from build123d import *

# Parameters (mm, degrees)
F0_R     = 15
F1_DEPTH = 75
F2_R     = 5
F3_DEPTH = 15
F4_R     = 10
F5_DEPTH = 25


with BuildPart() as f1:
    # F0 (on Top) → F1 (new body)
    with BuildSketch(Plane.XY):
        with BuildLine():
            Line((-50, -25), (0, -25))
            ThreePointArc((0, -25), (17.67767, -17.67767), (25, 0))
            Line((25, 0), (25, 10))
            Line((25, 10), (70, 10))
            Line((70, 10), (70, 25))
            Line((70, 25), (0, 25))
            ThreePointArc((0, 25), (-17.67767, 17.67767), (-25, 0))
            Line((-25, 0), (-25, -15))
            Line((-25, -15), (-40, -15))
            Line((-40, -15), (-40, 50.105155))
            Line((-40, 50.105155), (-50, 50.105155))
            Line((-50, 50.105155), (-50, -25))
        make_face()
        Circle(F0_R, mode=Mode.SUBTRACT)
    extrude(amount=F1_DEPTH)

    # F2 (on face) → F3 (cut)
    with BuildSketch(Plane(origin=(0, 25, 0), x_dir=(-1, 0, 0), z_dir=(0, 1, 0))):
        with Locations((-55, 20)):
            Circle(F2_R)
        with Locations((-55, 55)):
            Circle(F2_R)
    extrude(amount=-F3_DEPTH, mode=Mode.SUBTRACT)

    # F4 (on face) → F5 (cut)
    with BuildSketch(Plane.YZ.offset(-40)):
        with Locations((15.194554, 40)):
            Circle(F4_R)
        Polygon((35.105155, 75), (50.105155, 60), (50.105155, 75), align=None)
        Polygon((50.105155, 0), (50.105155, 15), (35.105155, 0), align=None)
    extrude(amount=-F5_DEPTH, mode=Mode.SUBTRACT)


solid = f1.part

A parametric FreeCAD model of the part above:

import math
import FreeCAD as App
import Part
import Sketcher

V = App.Vector
Q = App.Units.Quantity


def add_polygon(sketch, points):
    """Adds a closed chain of lines whose ends are joined by coincident constraints."""
    first, n = sketch.GeometryCount, len(points)
    for a, b in zip(points, points[1:] + points[:1]):
        sketch.addGeometry(Part.LineSegment(App.Vector(*a, 0), App.Vector(*b, 0)), False)
    for i in range(n):
        sketch.addConstraint(Sketcher.Constraint("Coincident", first + i, 2, first + (i + 1) % n, 1))

doc = App.newDocument("Part")
body = doc.addObject("PartDesign::Body", "Body")

sketch1 = doc.addObject("Sketcher::SketchObject", "Sketch")
body.addObject(sketch1)
sketch1.AttachmentSupport = (doc.XY_Plane, [""])
sketch1.MapMode = "FlatFace"
sketch1.addGeometry([
    Part.LineSegment(V(-50, -25, 0), V(0, -25, 0)),
    Part.ArcOfCircle(Part.Circle(V(0, 0, 0), V(0, 0, 1), 25), math.radians(-90), math.radians(0)),
    Part.LineSegment(V(25, 0, 0), V(25, 10, 0)),
    Part.LineSegment(V(25, 10, 0), V(70, 10, 0)),
    Part.LineSegment(V(70, 10, 0), V(70, 25, 0)),
    Part.LineSegment(V(70, 25, 0), V(0, 25, 0)),
    Part.ArcOfCircle(Part.Circle(V(0, 0, 0), V(0, 0, 1), 25), math.radians(90), math.radians(180)),
    Part.LineSegment(V(-25, 0, 0), V(-25, -15, 0)),
    Part.LineSegment(V(-25, -15, 0), V(-40, -15, 0)),
    Part.LineSegment(V(-40, -15, 0), V(-40, 50, 0)),
    Part.LineSegment(V(-40, 50, 0), V(-50, 50, 0)),
    Part.LineSegment(V(-50, 50, 0), V(-50, -25, 0)),
    Part.Circle(V(0, 0, 0), V(0, 0, 1), 15),
], False)
sketch1.addConstraint([
    Sketcher.Constraint("Tangent", 0, 2, 1, 1),
    Sketcher.Constraint("Tangent", 1, 2, 2, 1),
    Sketcher.Constraint("Coincident", 2, 2, 3, 1),
    Sketcher.Constraint("Coincident", 3, 2, 4, 1),
    Sketcher.Constraint("Coincident", 4, 2, 5, 1),
    Sketcher.Constraint("Tangent", 5, 2, 6, 1),
    Sketcher.Constraint("Tangent", 6, 2, 7, 1),
    Sketcher.Constraint("Coincident", 7, 2, 8, 1),
    Sketcher.Constraint("Coincident", 8, 2, 9, 1),
    Sketcher.Constraint("Coincident", 9, 2, 10, 1),
    Sketcher.Constraint("Coincident", 10, 2, 11, 1),
    Sketcher.Constraint("Coincident", 11, 2, 0, 1),
    Sketcher.Constraint("Horizontal", 0),
    Sketcher.Constraint("Vertical", 2),
    Sketcher.Constraint("Horizontal", 3),
    Sketcher.Constraint("Vertical", 4),
    Sketcher.Constraint("Horizontal", 5),
    Sketcher.Constraint("Vertical", 7),
    Sketcher.Constraint("Horizontal", 8),
    Sketcher.Constraint("Vertical", 9),
    Sketcher.Constraint("Horizontal", 10),
    Sketcher.Constraint("Vertical", 11),
    Sketcher.Constraint("Coincident", 1, 3, -1, 1),
    Sketcher.Constraint("Coincident", 6, 3, -1, 1),
    Sketcher.Constraint("Coincident", 12, 3, -1, 1),
    Sketcher.Constraint("Equal", 1, 6),
    Sketcher.Constraint("Equal", 10, 2),
    Sketcher.Constraint("Equal", 8, 4),
    Sketcher.Constraint("Equal", 4, 7),
    Sketcher.Constraint("Diameter", 12, Q("30 mm")),
    Sketcher.Constraint("Radius", 1, Q("24.999998 mm")),
    Sketcher.Constraint("DistanceX", 3, 1, 3, 2, Q("45 mm")),
    Sketcher.Constraint("DistanceX", 8, 2, 8, 1, Q("15 mm")),
    Sketcher.Constraint("DistanceY", 9, 1, 9, 2, Q("65.105155 mm")),
])
pad1 = doc.addObject("PartDesign::Pad", "Pad")
body.addObject(pad1)
pad1.Profile = sketch1
pad1.Length = 75

sketch2 = doc.addObject("Sketcher::SketchObject", "Sketch001")
body.addObject(sketch2)
sketch2.AttachmentSupport = (doc.XZ_Plane, [""])
sketch2.MapMode = "FlatFace"
sketch2.AttachmentOffset = App.Placement(V(0, 0, -25), App.Rotation())
sketch2.addGeometry([
    Part.Circle(V(55, 20, 0), V(0, 0, 1), 5),
    Part.Circle(V(55, 55, 0), V(0, 0, 1), 5),
], False)
sketch2.addConstraint([
    Sketcher.Constraint("Equal", 0, 1),
    Sketcher.Constraint("Vertical", 0, 3, 1, 3),
    Sketcher.Constraint("Diameter", 0, Q("10 mm")),
    Sketcher.Constraint("DistanceX", -1, 1, 0, 3, Q("55 mm")),
    Sketcher.Constraint("DistanceY", -1, 1, 0, 3, Q("20 mm")),
    Sketcher.Constraint("DistanceY", -1, 1, 1, 3, Q("55 mm")),
])
pocket1 = doc.addObject("PartDesign::Pocket", "Pocket")
body.addObject(pocket1)
pocket1.Profile = sketch2
pocket1.Length = 15
pocket1.Reversed = True

sketch3 = doc.addObject("Sketcher::SketchObject", "Sketch002")
body.addObject(sketch3)
sketch3.AttachmentSupport = (doc.YZ_Plane, [""])
sketch3.MapMode = "FlatFace"
sketch3.AttachmentOffset = App.Placement(V(0, 0, -40), App.Rotation())
sketch3.addGeometry(Part.Circle(V(15, 40, 0), V(0, 0, 1), 10), False)
add_polygon(sketch3, [(35, 75), (50, 60), (50, 75)])
add_polygon(sketch3, [(50, 0), (50, 15), (35, 0)])
sketch3.addConstraint([
    Sketcher.Constraint("Vertical", 2),
    Sketcher.Constraint("Horizontal", 3),
    Sketcher.Constraint("Vertical", 4),
    Sketcher.Constraint("Horizontal", 6),
    Sketcher.Constraint("PointOnObject", 5, 2, -1),
    Sketcher.Constraint("Perpendicular", 1, 5),
    Sketcher.Constraint("Vertical", 2, 2, 4, 2),
    Sketcher.Constraint("Vertical", 3, 2, 5, 2),
    Sketcher.Constraint("Equal", 6, 2),
    Sketcher.Constraint("Diameter", 0, Q("20 mm")),
    Sketcher.Constraint("DistanceX", 3, 2, 3, 1, Q("15 mm")),
    Sketcher.Constraint("DistanceY", -1, 1, 0, 3, Q("40 mm")),
    Sketcher.Constraint("DistanceY", -1, 1, 1, 2, Q("60 mm")),
    Sketcher.Constraint("DistanceX", 0, 3, 1, 2, Q("34.910601 mm")),
    Sketcher.Constraint("DistanceX", -1, 1, 0, 3, Q("15.194554 mm")),
])
pocket2 = doc.addObject("PartDesign::Pocket", "Pocket001")
body.addObject(pocket2)
pocket2.Profile = sketch3
pocket2.Length = 25

doc.recompute()
